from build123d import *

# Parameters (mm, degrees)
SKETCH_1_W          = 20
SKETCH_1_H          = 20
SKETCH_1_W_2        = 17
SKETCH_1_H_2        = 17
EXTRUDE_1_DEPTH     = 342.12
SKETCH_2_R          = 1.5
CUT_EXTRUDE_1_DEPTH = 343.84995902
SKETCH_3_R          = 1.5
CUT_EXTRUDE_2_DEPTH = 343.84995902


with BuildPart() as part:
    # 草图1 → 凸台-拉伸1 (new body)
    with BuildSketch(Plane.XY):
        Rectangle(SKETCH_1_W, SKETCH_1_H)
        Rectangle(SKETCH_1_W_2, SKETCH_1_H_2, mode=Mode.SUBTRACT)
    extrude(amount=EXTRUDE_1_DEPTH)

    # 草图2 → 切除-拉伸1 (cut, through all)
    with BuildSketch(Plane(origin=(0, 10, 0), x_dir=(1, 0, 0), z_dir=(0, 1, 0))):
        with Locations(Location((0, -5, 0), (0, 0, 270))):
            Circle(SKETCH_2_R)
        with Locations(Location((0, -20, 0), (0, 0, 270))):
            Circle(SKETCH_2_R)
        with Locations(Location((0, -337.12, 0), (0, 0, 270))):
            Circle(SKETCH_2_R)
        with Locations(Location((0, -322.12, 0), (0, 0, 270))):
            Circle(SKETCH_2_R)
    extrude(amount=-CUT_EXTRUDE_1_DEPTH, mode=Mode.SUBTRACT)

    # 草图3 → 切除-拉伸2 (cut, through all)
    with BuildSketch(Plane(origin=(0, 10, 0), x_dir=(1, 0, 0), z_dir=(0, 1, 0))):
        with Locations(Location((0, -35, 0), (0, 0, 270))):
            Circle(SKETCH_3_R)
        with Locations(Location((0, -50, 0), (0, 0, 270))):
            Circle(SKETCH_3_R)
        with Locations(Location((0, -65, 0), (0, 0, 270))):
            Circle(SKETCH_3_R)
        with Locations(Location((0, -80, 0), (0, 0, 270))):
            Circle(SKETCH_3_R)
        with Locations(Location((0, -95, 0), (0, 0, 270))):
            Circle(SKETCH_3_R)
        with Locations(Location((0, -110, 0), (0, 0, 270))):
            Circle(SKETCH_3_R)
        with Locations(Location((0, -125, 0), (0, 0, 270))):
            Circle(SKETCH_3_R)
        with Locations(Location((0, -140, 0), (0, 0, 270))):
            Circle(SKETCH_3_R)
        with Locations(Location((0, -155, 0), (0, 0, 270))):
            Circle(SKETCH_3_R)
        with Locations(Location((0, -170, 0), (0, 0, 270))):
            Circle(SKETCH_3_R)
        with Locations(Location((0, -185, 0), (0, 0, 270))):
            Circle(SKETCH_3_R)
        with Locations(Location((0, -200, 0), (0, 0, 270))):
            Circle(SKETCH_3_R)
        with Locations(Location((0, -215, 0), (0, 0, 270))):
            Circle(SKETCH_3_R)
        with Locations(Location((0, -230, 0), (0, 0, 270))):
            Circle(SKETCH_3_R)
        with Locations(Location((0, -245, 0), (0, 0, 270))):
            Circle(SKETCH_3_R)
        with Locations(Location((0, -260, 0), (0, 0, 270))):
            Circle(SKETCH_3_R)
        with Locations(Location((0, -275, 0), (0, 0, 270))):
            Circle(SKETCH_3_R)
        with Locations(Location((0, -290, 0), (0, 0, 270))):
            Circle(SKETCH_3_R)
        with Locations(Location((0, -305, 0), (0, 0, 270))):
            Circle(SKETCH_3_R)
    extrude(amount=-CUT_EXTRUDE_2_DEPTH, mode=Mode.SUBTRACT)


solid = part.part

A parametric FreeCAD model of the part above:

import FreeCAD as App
import Part
import Sketcher
from FreeCAD import Vector
Q = App.Units.Quantity


def add_polygon(sketch, points):
    """Adds a closed chain of lines whose ends are joined by coincident constraints."""
    first, n = sketch.GeometryCount, len(points)
    for a, b in zip(points, points[1:] + points[:1]):
        sketch.addGeometry(Part.LineSegment(App.Vector(*a, 0), App.Vector(*b, 0)), False)
    for i in range(n):
        sketch.addConstraint(Sketcher.Constraint("Coincident", first + i, 2, first + (i + 1) % n, 1))

doc = App.newDocument("Part")
params = doc.addObject("Spreadsheet::Sheet", "Params")
for row, (alias, value) in enumerate([
    ("sketch1_width", "20 mm"),
    ("sketch1_width2", "17 mm"),
    ("pad1_length", "342.12 mm"),
    ("sketch2_diameter", "3 mm"),
    ("sketch3_diameter", "3 mm"),
], start=1):
    params.set(f"A{row}", alias)
    params.set(f"B{row}", "=" + value)
    params.setAlias(f"B{row}", alias)

body = doc.addObject("PartDesign::Body", "Body")

# Sketch on XY plane
sketch1 = body.newObject("Sketcher::SketchObject", "Sketch")
sketch1.AttachmentSupport = (doc.getObject("XY_Plane"), [""])
sketch1.MapMode = "FlatFace"
add_polygon(sketch1, [(-10, 10), (-10, -10), (10, -10), (10, 10)])  # lines 0-3
add_polygon(sketch1, [(8.5, -8.5), (-8.5, -8.5), (-8.5, 8.5), (8.5, 8.5)])  # lines 4-7
sketch1.addConstraint([
    Sketcher.Constraint("Vertical", 0),
    Sketcher.Constraint("Horizontal", 1),
    Sketcher.Constraint("Vertical", 2),
    Sketcher.Constraint("Horizontal", 3),
    Sketcher.Constraint("Horizontal", 4),
    Sketcher.Constraint("Vertical", 5),
    Sketcher.Constraint("Horizontal", 6),
    Sketcher.Constraint("Vertical", 7),
    Sketcher.Constraint("Symmetric", 0, 2, 2, 2, -1, 1),
    Sketcher.Constraint("Symmetric", 4, 2, 6, 2, -1, 1),
    Sketcher.Constraint("Equal", 3, 0),
    Sketcher.Constraint("Equal", 6, 5),
    Sketcher.Constraint("DistanceX", 1, 1, 1, 2, Q("20 mm")),
    Sketcher.Constraint("DistanceX", 4, 2, 4, 1, Q("17 mm")),
])
sketch1.setExpression("Constraints[20]", "Params.sketch1_width")
sketch1.setExpression("Constraints[21]", "Params.sketch1_width2")
pad1 = body.newObject("PartDesign::Pad", "Pad")
pad1.Profile = sketch1
pad1.setExpression("Length", "Params.pad1_length")

# Sketch on XZ plane
sketch2 = body.newObject("Sketcher::SketchObject", "Sketch001")
sketch2.AttachmentSupport = (doc.getObject("XZ_Plane"), [""])
sketch2.MapMode = "FlatFace"
sketch2.AttachmentOffset = App.Placement(Vector(0, 0, -10), App.Rotation())
sketch2.addGeometry([
    Part.Circle(Vector(0, 5, 0), Vector(0, 0, 1), 1.5),
    Part.Circle(Vector(0, 20, 0), Vector(0, 0, 1), 1.5),
    Part.Circle(Vector(0, 337.12, 0), Vector(0, 0, 1), 1.5),
    Part.Circle(Vector(0, 322.12, 0), Vector(0, 0, 1), 1.5),
], False)
sketch2.addConstraint([
    Sketcher.Constraint("Equal", 0, 1),
    Sketcher.Constraint("Equal", 1, 2),
    Sketcher.Constraint("Equal", 2, 3),
    Sketcher.Constraint("PointOnObject", 0, 3, -2),
    Sketcher.Constraint("PointOnObject", 1, 3, -2),
    Sketcher.Constraint("PointOnObject", 2, 3, -2),
    Sketcher.Constraint("PointOnObject", 3, 3, -2),
    Sketcher.Constraint("Diameter", 0, Q("3 mm")),
    Sketcher.Constraint("DistanceY", -1, 1, 0, 3, Q("5 mm")),
    Sketcher.Constraint("DistanceY", -1, 1, 1, 3, Q("20 mm")),
    Sketcher.Constraint("DistanceY", 3, 3, 2, 3, Q("15 mm")),
    Sketcher.Constraint("DistanceY", -1, 1, 2, 3, Q("337.12 mm")),
])
sketch2.setExpression("Constraints[7]", "Params.sketch2_diameter")
pocket1 = body.newObject("PartDesign::Pocket", "Pocket")
pocket1.Profile = sketch2
pocket1.Type = "ThroughAll"
pocket1.Reversed = True

# Sketch on XZ plane
sketch3 = body.newObject("Sketcher::SketchObject", "Sketch002")
sketch3.AttachmentSupport = (doc.getObject("XZ_Plane"), [""])
sketch3.MapMode = "FlatFace"
sketch3.AttachmentOffset = App.Placement(Vector(0, 0, -10), App.Rotation())
sketch3.addGeometry([
    Part.Circle(Vector(0, 35, 0), Vector(0, 0, 1), 1.5),  # 0
    Part.Circle(Vector(0, 50, 0), Vector(0, 0, 1), 1.5),  # 1
    Part.Circle(Vector(0, 65, 0), Vector(0, 0, 1), 1.5),  # 2
    Part.Circle(Vector(0, 80, 0), Vector(0, 0, 1), 1.5),  # 3
    Part.Circle(Vector(0, 95, 0), Vector(0, 0, 1), 1.5),  # 4
    Part.Circle(Vector(0, 110, 0), Vector(0, 0, 1), 1.5),  # 5
    Part.Circle(Vector(0, 125, 0), Vector(0, 0, 1), 1.5),  # 6
    Part.Circle(Vector(0, 140, 0), Vector(0, 0, 1), 1.5),  # 7
    Part.Circle(Vector(0, 155, 0), Vector(0, 0, 1), 1.5),  # 8
    Part.Circle(Vector(0, 170, 0), Vector(0, 0, 1), 1.5),  # 9
    Part.Circle(Vector(0, 185, 0), Vector(0, 0, 1), 1.5),  # 10
    Part.Circle(Vector(0, 200, 0), Vector(0, 0, 1), 1.5),  # 11
    Part.Circle(Vector(0, 215, 0), Vector(0, 0, 1), 1.5),  # 12
    Part.Circle(Vector(0, 230, 0), Vector(0, 0, 1), 1.5),  # 13
    Part.Circle(Vector(0, 245, 0), Vector(0, 0, 1), 1.5),  # 14
    Part.Circle(Vector(0, 260, 0), Vector(0, 0, 1), 1.5),  # 15
    Part.Circle(Vector(0, 275, 0), Vector(0, 0, 1), 1.5),  # 16
    Part.Circle(Vector(0, 290, 0), Vector(0, 0, 1), 1.5),  # 17
    Part.Circle(Vector(0, 305, 0), Vector(0, 0, 1), 1.5),  # 18
], False)
sketch3.addConstraint([
    Sketcher.Constraint("Equal", 0, 1),
    Sketcher.Constraint("Equal", 1, 2),
    Sketcher.Constraint("Equal", 2, 3),
    Sketcher.Constraint("Equal", 3, 4),
    Sketcher.Constraint("Equal", 4, 5),
    Sketcher.Constraint("Equal", 5, 6),
    Sketcher.Constraint("Equal", 6, 7),
    Sketcher.Constraint("Equal", 7, 8),
    Sketcher.Constraint("Equal", 8, 9),
    Sketcher.Constraint("Equal", 9, 10),
    Sketcher.Constraint("Equal", 10, 11),
    Sketcher.Constraint("Equal", 11, 12),
    Sketcher.Constraint("Equal", 12, 13),
    Sketcher.Constraint("Equal", 13, 14),
    Sketcher.Constraint("Equal", 14, 15),
    Sketcher.Constraint("Equal", 15, 16),
    Sketcher.Constraint("Equal", 16, 17),
    Sketcher.Constraint("Equal", 17, 18),
    Sketcher.Constraint("PointOnObject", 0, 3, -2),
    Sketcher.Constraint("PointOnObject", 1, 3, -2),
    Sketcher.Constraint("PointOnObject", 2, 3, -2),
    Sketcher.Constraint("PointOnObject", 3, 3, -2),
    Sketcher.Constraint("PointOnObject", 4, 3, -2),
    Sketcher.Constraint("PointOnObject", 5, 3, -2),
    Sketcher.Constraint("PointOnObject", 6, 3, -2),
    Sketcher.Constraint("PointOnObject", 7, 3, -2),
    Sketcher.Constraint("PointOnObject", 8, 3, -2),
    Sketcher.Constraint("PointOnObject", 9, 3, -2),
    Sketcher.Constraint("PointOnObject", 10, 3, -2),
    Sketcher.Constraint("PointOnObject", 11, 3, -2),
    Sketcher.Constraint("PointOnObject", 12, 3, -2),
    Sketcher.Constraint("PointOnObject", 13, 3, -2),
    Sketcher.Constraint("PointOnObject", 14, 3, -2),
    Sketcher.Constraint("PointOnObject", 15, 3, -2),
    Sketcher.Constraint("PointOnObject", 16, 3, -2),
    Sketcher.Constraint("PointOnObject", 17, 3, -2),
    Sketcher.Constraint("PointOnObject", 18, 3, -2),
    Sketcher.Constraint("Diameter", 0, Q("3 mm")),
    Sketcher.Constraint("DistanceY", -1, 1, 0, 3, Q("35 mm")),
    Sketcher.Constraint("DistanceY", -1, 1, 1, 3, Q("50 mm")),
    Sketcher.Constraint("DistanceY", -1, 1, 2, 3, Q("65 mm")),
    Sketcher.Constraint("DistanceY", -1, 1, 3, 3, Q("80 mm")),
    Sketcher.Constraint("DistanceY", -1, 1, 4, 3, Q("95 mm")),
    Sketcher.Constraint("DistanceY", -1, 1, 5, 3, Q("110 mm")),
    Sketcher.Constraint("DistanceY", -1, 1, 6, 3, Q("125 mm")),
    Sketcher.Constraint("DistanceY", -1, 1, 7, 3, Q("140 mm")),
    Sketcher.Constraint("DistanceY", -1, 1, 8, 3, Q("155 mm")),
    Sketcher.Constraint("DistanceY", -1, 1, 9, 3, Q("170 mm")),
    Sketcher.Constraint("DistanceY", -1, 1, 10, 3, Q("185 mm")),
    Sketcher.Constraint("DistanceY", -1, 1, 11, 3, Q("200 mm")),
    Sketcher.Constraint("DistanceY", -1, 1, 12, 3, Q("215 mm")),
    Sketcher.Constraint("DistanceY", -1, 1, 13, 3, Q("230 mm")),
    Sketcher.Constraint("DistanceY", -1, 1, 14, 3, Q("245 mm")),
    Sketcher.Constraint("DistanceY", -1, 1, 15, 3, Q("260 mm")),
    Sketcher.Constraint("DistanceY", -1, 1, 16, 3, Q("275 mm")),
    Sketcher.Constraint("DistanceY", -1, 1, 17, 3, Q("290 mm")),
    Sketcher.Constraint("DistanceY", -1, 1, 18, 3, Q("305 mm")),
])
sketch3.setExpression("Constraints[37]", "Params.sketch3_diameter")
pocket2 = body.newObject("PartDesign::Pocket", "Pocket001")
pocket2.Profile = sketch3
pocket2.Type = "ThroughAll"
pocket2.Reversed = True

doc.recompute()
